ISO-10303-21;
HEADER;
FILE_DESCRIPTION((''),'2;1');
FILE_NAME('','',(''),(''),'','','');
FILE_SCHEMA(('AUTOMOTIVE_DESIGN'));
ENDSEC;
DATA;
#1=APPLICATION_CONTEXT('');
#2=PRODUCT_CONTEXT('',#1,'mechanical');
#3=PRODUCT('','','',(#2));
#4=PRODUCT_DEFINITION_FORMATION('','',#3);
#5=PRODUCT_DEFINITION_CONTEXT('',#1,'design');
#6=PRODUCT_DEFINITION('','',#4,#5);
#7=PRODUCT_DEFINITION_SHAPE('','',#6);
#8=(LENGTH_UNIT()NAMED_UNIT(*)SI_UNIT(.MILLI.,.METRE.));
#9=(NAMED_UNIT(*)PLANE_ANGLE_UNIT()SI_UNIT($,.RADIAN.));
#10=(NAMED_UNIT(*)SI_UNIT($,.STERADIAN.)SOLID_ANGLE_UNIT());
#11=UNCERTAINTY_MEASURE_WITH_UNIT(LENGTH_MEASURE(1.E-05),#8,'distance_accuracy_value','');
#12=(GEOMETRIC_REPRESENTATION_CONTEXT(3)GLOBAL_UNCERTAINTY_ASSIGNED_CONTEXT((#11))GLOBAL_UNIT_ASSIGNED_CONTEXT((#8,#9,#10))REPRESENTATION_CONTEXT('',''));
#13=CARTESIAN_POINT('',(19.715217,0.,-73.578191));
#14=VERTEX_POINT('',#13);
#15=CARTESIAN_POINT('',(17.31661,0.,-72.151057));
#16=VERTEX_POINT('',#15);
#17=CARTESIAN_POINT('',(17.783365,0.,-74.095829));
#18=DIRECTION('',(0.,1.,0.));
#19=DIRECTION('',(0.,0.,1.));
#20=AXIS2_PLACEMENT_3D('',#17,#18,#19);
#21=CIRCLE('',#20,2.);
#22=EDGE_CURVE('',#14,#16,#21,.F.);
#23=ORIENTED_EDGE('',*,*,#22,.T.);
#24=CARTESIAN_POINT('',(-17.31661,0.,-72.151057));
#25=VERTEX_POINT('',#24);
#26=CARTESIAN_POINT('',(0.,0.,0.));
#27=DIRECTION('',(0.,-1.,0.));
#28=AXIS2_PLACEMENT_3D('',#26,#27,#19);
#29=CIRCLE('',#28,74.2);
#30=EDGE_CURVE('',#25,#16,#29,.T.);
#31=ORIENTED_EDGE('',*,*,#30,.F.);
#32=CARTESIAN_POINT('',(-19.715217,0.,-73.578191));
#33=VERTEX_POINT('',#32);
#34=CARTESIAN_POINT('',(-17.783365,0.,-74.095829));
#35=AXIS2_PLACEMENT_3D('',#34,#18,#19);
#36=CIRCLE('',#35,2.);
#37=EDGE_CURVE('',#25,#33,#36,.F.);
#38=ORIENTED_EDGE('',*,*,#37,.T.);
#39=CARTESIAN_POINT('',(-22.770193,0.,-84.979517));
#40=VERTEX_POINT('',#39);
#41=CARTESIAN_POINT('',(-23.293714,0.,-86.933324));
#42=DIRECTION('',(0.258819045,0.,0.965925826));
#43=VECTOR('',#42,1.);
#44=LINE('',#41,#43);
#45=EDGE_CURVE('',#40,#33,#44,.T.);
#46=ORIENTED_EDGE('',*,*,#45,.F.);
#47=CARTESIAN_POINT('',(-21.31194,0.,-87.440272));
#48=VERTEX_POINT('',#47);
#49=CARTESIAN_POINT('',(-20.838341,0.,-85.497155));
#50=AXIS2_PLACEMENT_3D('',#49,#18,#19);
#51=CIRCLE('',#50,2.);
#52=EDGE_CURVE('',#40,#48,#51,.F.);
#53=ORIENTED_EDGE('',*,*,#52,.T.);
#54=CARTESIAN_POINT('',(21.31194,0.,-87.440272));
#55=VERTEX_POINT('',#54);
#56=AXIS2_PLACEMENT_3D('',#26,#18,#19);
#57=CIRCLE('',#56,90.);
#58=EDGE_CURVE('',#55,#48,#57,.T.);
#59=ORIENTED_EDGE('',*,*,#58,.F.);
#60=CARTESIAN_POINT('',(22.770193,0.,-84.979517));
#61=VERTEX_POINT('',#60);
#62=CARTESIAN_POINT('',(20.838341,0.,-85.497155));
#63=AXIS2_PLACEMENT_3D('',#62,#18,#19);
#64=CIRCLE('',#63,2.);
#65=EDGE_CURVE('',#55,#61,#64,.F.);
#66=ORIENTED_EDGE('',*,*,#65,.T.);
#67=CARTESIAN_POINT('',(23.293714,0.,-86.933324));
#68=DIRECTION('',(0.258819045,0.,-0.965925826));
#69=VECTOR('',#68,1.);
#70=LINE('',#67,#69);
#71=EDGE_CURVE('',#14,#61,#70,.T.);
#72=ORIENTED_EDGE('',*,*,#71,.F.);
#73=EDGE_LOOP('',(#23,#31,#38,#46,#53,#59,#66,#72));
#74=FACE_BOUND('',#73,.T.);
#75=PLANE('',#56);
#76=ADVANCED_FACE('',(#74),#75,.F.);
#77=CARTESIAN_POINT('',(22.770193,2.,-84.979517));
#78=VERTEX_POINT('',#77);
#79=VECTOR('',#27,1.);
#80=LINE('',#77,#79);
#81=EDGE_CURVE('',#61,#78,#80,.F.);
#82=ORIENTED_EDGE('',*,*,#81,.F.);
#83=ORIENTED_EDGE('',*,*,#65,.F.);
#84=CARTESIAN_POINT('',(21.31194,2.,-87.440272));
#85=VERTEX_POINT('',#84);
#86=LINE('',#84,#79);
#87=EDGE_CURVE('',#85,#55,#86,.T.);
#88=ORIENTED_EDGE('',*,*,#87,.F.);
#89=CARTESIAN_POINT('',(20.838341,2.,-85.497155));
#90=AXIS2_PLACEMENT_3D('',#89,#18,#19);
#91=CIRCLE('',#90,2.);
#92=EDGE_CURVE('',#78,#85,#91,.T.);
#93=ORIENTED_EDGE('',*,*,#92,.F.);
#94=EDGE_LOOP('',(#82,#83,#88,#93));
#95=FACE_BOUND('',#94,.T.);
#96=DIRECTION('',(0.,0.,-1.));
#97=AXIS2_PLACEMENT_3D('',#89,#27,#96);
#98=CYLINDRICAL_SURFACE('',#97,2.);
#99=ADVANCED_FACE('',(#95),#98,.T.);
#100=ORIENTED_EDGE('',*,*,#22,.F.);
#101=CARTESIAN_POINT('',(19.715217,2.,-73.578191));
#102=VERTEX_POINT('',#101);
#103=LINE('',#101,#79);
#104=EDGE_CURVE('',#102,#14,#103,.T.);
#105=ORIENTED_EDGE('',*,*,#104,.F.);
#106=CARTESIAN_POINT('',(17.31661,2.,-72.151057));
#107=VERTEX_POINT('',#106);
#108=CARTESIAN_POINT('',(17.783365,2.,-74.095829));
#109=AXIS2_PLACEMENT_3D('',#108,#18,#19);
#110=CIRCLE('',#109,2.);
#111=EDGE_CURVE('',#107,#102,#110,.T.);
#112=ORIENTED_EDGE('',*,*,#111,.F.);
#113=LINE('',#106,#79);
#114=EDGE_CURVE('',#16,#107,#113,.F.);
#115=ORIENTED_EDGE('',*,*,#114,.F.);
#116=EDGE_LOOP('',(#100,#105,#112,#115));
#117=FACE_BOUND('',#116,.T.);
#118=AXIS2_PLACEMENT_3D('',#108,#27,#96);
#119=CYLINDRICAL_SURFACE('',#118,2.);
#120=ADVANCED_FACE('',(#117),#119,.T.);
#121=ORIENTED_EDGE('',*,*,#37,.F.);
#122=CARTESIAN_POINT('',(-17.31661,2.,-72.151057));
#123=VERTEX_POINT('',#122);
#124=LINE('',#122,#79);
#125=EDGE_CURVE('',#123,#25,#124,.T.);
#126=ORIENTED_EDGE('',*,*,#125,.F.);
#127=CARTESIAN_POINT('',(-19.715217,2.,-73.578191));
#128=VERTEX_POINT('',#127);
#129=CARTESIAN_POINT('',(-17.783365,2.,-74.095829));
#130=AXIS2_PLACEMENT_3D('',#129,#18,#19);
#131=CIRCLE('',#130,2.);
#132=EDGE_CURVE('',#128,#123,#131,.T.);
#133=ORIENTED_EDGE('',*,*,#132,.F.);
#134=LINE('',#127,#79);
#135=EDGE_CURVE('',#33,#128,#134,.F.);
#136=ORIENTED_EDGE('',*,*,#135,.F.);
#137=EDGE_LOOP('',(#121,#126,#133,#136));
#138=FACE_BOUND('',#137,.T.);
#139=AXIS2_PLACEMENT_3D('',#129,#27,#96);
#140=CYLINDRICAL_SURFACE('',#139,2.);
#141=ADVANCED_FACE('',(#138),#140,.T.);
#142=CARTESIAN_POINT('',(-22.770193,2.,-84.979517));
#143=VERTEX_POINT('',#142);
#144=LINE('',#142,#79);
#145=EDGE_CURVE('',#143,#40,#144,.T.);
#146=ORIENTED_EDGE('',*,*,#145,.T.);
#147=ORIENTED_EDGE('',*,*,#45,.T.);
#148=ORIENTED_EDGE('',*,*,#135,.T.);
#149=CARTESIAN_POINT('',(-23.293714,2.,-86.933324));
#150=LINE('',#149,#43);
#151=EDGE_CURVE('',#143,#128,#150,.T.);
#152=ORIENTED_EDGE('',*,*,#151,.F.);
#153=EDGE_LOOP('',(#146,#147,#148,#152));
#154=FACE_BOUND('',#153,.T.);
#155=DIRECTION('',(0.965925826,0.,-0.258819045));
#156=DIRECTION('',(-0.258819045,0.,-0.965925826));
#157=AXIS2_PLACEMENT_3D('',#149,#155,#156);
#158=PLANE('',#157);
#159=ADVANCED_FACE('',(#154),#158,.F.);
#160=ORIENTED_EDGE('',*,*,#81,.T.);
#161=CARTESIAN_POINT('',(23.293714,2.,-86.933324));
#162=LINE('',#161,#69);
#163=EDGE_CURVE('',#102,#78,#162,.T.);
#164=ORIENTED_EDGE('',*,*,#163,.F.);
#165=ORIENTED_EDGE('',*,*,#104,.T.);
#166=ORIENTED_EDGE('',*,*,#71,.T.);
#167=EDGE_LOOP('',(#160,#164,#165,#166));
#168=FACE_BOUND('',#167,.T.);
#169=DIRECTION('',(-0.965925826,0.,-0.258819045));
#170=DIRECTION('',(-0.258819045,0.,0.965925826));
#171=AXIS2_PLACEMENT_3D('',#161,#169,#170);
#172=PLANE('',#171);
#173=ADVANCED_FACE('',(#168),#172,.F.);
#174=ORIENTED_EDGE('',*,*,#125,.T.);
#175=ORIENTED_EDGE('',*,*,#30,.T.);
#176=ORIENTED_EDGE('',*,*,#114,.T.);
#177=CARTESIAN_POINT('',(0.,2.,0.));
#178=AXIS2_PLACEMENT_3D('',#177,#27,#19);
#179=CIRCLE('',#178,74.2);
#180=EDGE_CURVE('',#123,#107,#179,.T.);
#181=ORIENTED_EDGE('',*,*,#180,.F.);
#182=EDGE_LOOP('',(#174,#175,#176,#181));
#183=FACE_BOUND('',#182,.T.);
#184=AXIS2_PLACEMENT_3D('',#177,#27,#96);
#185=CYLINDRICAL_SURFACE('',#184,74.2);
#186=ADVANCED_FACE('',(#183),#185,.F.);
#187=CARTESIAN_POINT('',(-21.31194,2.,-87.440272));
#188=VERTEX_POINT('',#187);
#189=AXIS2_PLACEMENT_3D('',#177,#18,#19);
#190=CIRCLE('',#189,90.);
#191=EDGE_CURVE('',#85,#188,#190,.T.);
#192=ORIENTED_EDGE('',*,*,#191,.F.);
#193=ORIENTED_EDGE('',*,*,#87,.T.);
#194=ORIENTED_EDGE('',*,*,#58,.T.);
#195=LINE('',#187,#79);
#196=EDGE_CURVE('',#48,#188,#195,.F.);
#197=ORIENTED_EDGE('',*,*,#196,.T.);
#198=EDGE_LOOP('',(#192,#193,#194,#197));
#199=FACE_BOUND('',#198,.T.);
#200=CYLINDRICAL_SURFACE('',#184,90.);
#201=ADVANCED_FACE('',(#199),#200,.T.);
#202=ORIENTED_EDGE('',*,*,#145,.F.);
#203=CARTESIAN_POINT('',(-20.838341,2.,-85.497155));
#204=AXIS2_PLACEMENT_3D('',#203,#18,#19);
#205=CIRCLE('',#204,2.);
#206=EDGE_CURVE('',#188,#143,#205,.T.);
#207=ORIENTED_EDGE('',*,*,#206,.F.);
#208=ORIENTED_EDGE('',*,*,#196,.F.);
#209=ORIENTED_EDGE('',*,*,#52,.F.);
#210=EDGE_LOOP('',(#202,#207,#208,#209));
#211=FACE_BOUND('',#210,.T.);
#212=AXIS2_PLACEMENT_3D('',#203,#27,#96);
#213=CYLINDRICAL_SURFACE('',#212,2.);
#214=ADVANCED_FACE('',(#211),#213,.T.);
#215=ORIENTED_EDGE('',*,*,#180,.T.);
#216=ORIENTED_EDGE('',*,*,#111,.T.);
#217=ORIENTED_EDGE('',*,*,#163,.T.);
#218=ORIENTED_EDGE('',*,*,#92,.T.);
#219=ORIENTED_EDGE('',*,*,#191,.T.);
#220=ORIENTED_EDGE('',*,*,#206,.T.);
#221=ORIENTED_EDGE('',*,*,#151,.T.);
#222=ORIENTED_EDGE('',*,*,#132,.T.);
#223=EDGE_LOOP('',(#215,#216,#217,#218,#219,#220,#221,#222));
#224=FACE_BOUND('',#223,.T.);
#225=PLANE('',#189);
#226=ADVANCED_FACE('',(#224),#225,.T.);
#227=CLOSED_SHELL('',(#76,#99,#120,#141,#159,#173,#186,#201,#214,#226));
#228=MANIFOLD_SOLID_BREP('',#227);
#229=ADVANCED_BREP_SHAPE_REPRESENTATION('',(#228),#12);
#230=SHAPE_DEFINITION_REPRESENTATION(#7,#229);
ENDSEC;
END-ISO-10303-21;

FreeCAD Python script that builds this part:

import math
import FreeCAD as App
import Part
import Sketcher
from FreeCAD import Vector
Q = App.Units.Quantity


def edges_at(feature, points):
    """Names of the edges that pass closest to the given points."""
    edges = feature.Shape.Edges
    near = lambda p: min(range(len(edges)), key=lambda i: edges[i].distToShape(Part.Vertex(*p))[0])
    return sorted({f"Edge{near(p) + 1}" for p in points})

doc = App.newDocument("Part")
params = doc.addObject("Spreadsheet::Sheet", "Params")
for row, (alias, value) in enumerate([
    ("sketch1_radius", "90 mm"),
    ("sketch1_radius2", "74.2 mm"),
    ("pad1_length", "2 mm"),
    ("fillet_radius", "2 mm"),
], start=1):
    params.set(f"A{row}", alias)
    params.set(f"B{row}", "=" + value)
    params.setAlias(f"B{row}", alias)

body = doc.addObject("PartDesign::Body", "Body")

# Sketch on XZ plane
sketch1 = doc.addObject("Sketcher::SketchObject", "Sketch")
body.addObject(sketch1)
sketch1.AttachmentSupport = (doc.XZ_Plane, [""])
sketch1.MapMode = "FlatFace"
sketch1.addGeometry([
    Part.LineSegment(Vector(-23.293714, -86.933324, 0), Vector(-19.204373, -71.671696, 0)),
    Part.ArcOfCircle(Part.Circle(Vector(0, 0, 0), Vector(0, 0, 1), 74.2), math.radians(-105), math.radians(-75)),
    Part.LineSegment(Vector(19.204373, -71.671696, 0), Vector(23.293714, -86.933324, 0)),
    Part.ArcOfCircle(Part.Circle(Vector(0, 0, 0), Vector(0, 0, 1), 90), math.radians(-105), math.radians(-75)),
], False)
sketch1.addConstraint([
    Sketcher.Constraint("Coincident", 0, 2, 1, 1),
    Sketcher.Constraint("Coincident", 1, 2, 2, 1),
    Sketcher.Constraint("Coincident", 2, 2, 3, 2),
    Sketcher.Constraint("Coincident", 3, 1, 0, 1),
    Sketcher.Constraint("Coincident", 1, 3, -1, 1),
    Sketcher.Constraint("Coincident", 3, 3, -1, 1),
    Sketcher.Constraint("Horizontal", 0, 2, 1, 2),
    Sketcher.Constraint("Horizontal", 2, 2, 3, 1),
    Sketcher.Constraint("Radius", 3, 90.0),
    Sketcher.Constraint("Radius", 1, 74.2),
    Sketcher.Constraint("Angle", 0, Q("75 deg")),
    Sketcher.Constraint("DistanceX", 3, 1, 2, 2, 46.587428),
])
sketch1.setExpression("Constraints[8]", "Params.sketch1_radius")
sketch1.setExpression("Constraints[9]", "Params.sketch1_radius2")
pad1 = doc.addObject("PartDesign::Pad", "Pad")
body.addObject(pad1)
pad1.Profile = sketch1
pad1.setExpression("Length", "Params.pad1_length")
pad1.Reversed = True
doc.recompute()

fillet = doc.addObject("PartDesign::Fillet", "Fillet")
body.addObject(fillet)
fillet.Base = (pad1, edges_at(pad1, [
    (23.294, 1, -86.933),
    (19.204, 1, -71.672),
    (-19.204, 1, -71.672),
    (-23.294, 1, -86.933),
]))
fillet.setExpression("Radius", "Params.fillet_radius")

doc.recompute()
